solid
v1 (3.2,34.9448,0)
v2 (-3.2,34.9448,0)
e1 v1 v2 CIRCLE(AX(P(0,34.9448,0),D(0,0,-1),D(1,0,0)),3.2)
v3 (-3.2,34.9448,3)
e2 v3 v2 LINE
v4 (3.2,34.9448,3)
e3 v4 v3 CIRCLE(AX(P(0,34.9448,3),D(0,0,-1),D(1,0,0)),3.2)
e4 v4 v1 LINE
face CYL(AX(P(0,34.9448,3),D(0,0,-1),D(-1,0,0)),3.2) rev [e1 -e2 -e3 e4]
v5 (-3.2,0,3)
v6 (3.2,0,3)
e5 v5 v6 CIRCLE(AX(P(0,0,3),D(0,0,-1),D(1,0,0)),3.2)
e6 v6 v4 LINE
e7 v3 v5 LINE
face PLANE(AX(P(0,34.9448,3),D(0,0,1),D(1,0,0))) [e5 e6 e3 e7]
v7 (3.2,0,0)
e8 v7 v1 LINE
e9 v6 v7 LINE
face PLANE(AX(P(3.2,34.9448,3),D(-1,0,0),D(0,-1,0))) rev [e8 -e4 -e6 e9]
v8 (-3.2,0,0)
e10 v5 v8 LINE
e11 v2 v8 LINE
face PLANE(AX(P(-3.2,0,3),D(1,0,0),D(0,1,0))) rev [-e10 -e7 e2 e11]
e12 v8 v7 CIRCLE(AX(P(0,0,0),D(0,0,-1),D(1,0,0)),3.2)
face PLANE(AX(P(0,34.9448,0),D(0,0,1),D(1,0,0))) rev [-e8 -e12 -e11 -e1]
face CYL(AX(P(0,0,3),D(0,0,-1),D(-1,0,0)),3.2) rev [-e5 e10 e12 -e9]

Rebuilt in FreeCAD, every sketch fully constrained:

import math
import FreeCAD as App
import Part
import Sketcher

V = App.Vector
Q = App.Units.Quantity

doc = App.newDocument("Part")
body = doc.addObject("PartDesign::Body", "Body")

sketch1 = body.newObject("Sketcher::SketchObject", "Sketch")
sketch1.AttachmentSupport = (doc.getObject("XY_Plane"), [""])
sketch1.MapMode = "FlatFace"
sketch1.addGeometry([
    Part.LineSegment(V(-3.2, 34.9, 0), V(-3.2, 0, 0)),
    Part.ArcOfCircle(Part.Circle(V(0, 0, 0), V(0, 0, 1), 3.2), math.radians(0), math.radians(180)),
    Part.LineSegment(V(3.2, 0, 0), V(3.2, 34.9, 0)),
    Part.ArcOfCircle(Part.Circle(V(0, 34.9, 0), V(0, 0, 1), 3.2), math.radians(180), math.radians(360)),
], False)
sketch1.addConstraint([
    Sketcher.Constraint("Tangent", 0, 2, 1, 2),
    Sketcher.Constraint("Tangent", 1, 1, 2, 1),
    Sketcher.Constraint("Tangent", 2, 2, 3, 2),
    Sketcher.Constraint("Tangent", 3, 1, 0, 1),
    Sketcher.Constraint("Vertical", 0),
    Sketcher.Constraint("Vertical", 2),
    Sketcher.Constraint("Coincident", 1, 3, -1, 1),
    Sketcher.Constraint("Radius", 1, Q("3.2 mm")),
    Sketcher.Constraint("DistanceY", 0, 2, 0, 1, Q("34.9448 mm")),
])
pad1 = body.newObject("PartDesign::Pad", "Pad")
pad1.Profile = sketch1
pad1.Length = 3

doc.recompute()
